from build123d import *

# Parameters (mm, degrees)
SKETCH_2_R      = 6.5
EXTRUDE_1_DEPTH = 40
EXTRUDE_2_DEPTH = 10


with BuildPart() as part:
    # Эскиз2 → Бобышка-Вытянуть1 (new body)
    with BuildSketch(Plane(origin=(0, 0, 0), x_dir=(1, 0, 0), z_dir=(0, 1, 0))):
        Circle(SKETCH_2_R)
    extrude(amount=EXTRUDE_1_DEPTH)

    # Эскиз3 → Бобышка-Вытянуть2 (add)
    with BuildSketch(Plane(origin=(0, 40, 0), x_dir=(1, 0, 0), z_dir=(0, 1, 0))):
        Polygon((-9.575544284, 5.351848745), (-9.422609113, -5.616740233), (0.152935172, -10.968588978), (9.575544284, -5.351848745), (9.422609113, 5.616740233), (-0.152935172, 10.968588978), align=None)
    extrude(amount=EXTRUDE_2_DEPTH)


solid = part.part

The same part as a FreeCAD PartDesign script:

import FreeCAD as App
import Part
import Sketcher

V = App.Vector


def add_polygon(sketch, points):
    """Adds a closed chain of lines whose ends are joined by coincident constraints."""
    first, n = sketch.GeometryCount, len(points)
    for a, b in zip(points, points[1:] + points[:1]):
        sketch.addGeometry(Part.LineSegment(App.Vector(*a, 0), App.Vector(*b, 0)), False)
    for i in range(n):
        sketch.addConstraint(Sketcher.Constraint("Coincident", first + i, 2, first + (i + 1) % n, 1))

doc = App.newDocument("Part")
body = doc.addObject("PartDesign::Body", "Body")

sketch1 = body.newObject("Sketcher::SketchObject", "Sketch")
sketch1.AttachmentSupport = (doc.getObject("XZ_Plane"), [""])
sketch1.MapMode = "FlatFace"
sketch1.addGeometry(Part.Circle(V(0, 0, 0), V(0, 0, 1), 6.5), False)
sketch1.addConstraint(Sketcher.Constraint("Coincident", 0, 3, -1, 1))
sketch1.addConstraint(Sketcher.Constraint("Diameter", 0, 13.0))
pad1 = body.newObject("PartDesign::Pad", "Pad")
pad1.Profile = sketch1
pad1.Length = 40
pad1.Reversed = True

sketch2 = body.newObject("Sketcher::SketchObject", "Sketch001")
sketch2.AttachmentSupport = (doc.getObject("XZ_Plane"), [""])
sketch2.MapMode = "FlatFace"
sketch2.AttachmentOffset = App.Placement(V(0, 0, -40), App.Rotation())
add_polygon(sketch2, [(-9.575544, -5.351849), (-9.422609, 5.61674), (0.152935, 10.968589), (9.575544, 5.351849), (9.422609, -5.61674), (-0.152935, -10.968589)])
sketch2.addConstraint(Sketcher.Constraint("Symmetric", 0, 2, 3, 2, -1, 1))
sketch2.addConstraint(Sketcher.Constraint("Symmetric", 1, 2, 4, 2, -1, 1))
sketch2.addConstraint(Sketcher.Constraint("Symmetric", 2, 2, 5, 2, -1, 1))
sketch2.addConstraint(Sketcher.Constraint("Equal", 0, 1))
sketch2.addConstraint(Sketcher.Constraint("Equal", 1, 2))
sketch2.addConstraint(Sketcher.Constraint("DistanceX", 0, 2, -1, 1, 9.422609))
sketch2.addConstraint(Sketcher.Constraint("DistanceY", -1, 1, 0, 2, 5.61674))
sketch2.addConstraint(Sketcher.Constraint("DistanceY", -1, 1, 1, 2, 10.968589))
sketch2.addConstraint(Sketcher.Constraint("DistanceY", -1, 1, 2, 2, 5.351849))
pad2 = body.newObject("PartDesign::Pad", "Pad001")
pad2.Profile = sketch2
pad2.Length = 10
pad2.Reversed = True

doc.recompute()
